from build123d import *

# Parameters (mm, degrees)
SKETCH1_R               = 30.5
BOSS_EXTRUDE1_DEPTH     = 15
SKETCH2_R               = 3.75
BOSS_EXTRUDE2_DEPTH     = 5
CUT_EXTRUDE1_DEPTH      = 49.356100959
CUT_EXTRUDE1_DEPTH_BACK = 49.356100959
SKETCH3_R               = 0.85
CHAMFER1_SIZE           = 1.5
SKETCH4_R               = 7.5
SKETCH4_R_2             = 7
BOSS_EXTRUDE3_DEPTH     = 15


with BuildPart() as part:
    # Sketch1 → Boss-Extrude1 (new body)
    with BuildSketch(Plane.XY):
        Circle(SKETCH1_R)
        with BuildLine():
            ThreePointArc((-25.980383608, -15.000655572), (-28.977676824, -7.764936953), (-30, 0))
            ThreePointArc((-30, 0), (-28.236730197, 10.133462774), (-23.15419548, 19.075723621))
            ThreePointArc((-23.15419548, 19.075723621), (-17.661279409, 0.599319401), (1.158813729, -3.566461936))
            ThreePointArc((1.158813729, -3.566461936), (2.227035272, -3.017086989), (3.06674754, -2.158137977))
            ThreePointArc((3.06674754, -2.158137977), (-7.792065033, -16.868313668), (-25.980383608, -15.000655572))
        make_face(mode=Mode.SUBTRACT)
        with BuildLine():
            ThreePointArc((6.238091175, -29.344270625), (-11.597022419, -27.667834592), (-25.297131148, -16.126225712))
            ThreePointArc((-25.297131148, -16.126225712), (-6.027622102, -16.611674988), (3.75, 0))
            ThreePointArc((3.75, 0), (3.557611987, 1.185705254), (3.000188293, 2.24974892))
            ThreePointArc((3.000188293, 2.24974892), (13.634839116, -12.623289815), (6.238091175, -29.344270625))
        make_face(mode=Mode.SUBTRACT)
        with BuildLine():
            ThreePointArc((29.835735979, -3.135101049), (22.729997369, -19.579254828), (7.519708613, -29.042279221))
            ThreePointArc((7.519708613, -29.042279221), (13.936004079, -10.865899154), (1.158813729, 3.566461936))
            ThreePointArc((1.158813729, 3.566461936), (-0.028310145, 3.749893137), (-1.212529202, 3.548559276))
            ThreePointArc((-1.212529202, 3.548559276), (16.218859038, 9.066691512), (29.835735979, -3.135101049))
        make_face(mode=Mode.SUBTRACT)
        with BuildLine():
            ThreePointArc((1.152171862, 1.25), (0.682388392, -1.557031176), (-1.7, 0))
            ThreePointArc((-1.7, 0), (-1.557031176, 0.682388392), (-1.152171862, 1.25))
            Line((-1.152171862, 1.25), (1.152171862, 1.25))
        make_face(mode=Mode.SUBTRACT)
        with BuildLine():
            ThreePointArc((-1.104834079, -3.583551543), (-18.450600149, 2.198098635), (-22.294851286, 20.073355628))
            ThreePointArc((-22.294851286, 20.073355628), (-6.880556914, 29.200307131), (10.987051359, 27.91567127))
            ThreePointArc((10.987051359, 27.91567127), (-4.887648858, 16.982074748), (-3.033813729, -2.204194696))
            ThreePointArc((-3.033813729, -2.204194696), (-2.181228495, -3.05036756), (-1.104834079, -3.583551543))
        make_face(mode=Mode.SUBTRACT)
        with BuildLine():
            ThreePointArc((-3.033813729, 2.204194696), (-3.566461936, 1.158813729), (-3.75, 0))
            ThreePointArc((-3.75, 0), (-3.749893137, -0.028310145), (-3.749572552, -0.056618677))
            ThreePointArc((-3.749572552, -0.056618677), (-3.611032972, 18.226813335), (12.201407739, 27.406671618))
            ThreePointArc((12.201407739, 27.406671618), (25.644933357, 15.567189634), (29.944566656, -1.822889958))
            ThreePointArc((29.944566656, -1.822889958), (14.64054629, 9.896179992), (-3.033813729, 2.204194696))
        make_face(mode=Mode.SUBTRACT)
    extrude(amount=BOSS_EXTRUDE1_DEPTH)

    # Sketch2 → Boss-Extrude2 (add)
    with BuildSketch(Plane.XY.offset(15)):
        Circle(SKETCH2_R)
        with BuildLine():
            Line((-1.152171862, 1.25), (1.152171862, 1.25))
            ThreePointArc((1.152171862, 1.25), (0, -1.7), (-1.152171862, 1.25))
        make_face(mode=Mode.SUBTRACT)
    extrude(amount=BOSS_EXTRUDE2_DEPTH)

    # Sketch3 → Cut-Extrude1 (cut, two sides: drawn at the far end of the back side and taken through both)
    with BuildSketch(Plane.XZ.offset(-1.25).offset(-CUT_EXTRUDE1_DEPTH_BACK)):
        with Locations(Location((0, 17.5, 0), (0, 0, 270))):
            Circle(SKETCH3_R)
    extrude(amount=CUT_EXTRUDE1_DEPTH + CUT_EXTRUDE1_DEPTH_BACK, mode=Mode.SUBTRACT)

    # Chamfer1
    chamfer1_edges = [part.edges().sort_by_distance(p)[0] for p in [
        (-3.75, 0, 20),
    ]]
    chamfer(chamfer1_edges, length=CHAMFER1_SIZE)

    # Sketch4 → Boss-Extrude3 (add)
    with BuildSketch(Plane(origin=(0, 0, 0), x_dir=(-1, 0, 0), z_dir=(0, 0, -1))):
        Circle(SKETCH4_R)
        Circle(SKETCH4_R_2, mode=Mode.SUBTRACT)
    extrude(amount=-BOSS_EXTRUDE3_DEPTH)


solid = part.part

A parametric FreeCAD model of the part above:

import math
import FreeCAD as App
import Part
import Sketcher


def edges_at(feature, points):
    """Names of the edges that pass closest to the given points."""
    edges = feature.Shape.Edges
    near = lambda p: min(range(len(edges)), key=lambda i: edges[i].distToShape(Part.Vertex(*p))[0])
    return sorted({f"Edge{near(p) + 1}" for p in points})

doc = App.newDocument("Part")
body = doc.addObject("PartDesign::Body", "Body")

sketch1 = doc.addObject("Sketcher::SketchObject", "Sketch")
body.addObject(sketch1)
sketch1.AttachmentSupport = (doc.XY_Plane, [""])
sketch1.MapMode = "FlatFace"
sketch1.addGeometry([
    Part.Circle(App.Vector(0, 0, 0), App.Vector(0, 0, 1), 30.5),
    Part.ArcOfCircle(Part.Circle(App.Vector(-4.712509, -14.503612, 0), App.Vector(0, 0, 1), 18.443449), math.radians(-53.577188), math.radians(65.280209)),
    Part.ArcOfCircle(Part.Circle(App.Vector(0, 0, 0), App.Vector(0, 0, 1), 30), math.radians(-147.483609), math.radians(-77.998554)),
    Part.ArcOfCircle(Part.Circle(App.Vector(-15.25, 0, 0), App.Vector(0, 0, 1), 19), math.radians(-121.924167), math.radians(0)),
    Part.ArcOfCircle(Part.Circle(App.Vector(0, 0, 0), App.Vector(0, 0, 1), 3.75), math.radians(0), math.radians(36.865103)),
    Part.LineSegment(App.Vector(-1.152172, 1.25, 0), App.Vector(1.152172, 1.25, 0)),
    Part.ArcOfCircle(Part.Circle(App.Vector(0, 0, 0), App.Vector(0, 0, 1), 1.7), math.radians(180), math.radians(407.332075)),
    Part.ArcOfCircle(Part.Circle(App.Vector(0, 0, 0), App.Vector(0, 0, 1), 1.7), math.radians(132.667925), math.radians(180)),
    Part.ArcOfCircle(Part.Circle(App.Vector(12.337509, -8.963725, 0), App.Vector(0, 0, 1), 18.443449), math.radians(18.422812), math.radians(137.280209)),
    Part.ArcOfCircle(Part.Circle(App.Vector(0, 0, 0), App.Vector(0, 0, 1), 30), math.radians(-75.483609), math.radians(-5.998554)),
    Part.ArcOfCircle(Part.Circle(App.Vector(-4.712509, -14.503612, 0), App.Vector(0, 0, 1), 19), math.radians(-49.924167), math.radians(72)),
    Part.ArcOfCircle(Part.Circle(App.Vector(0, 0, 0), App.Vector(0, 0, 1), 3.75), math.radians(72), math.radians(108.865103)),
    Part.ArcOfCircle(Part.Circle(App.Vector(-15.25, 0, 0), App.Vector(0, 0, 1), 18.443449), math.radians(-125.577188), math.radians(-6.719791)),
    Part.ArcOfCircle(Part.Circle(App.Vector(0, 0, 0), App.Vector(0, 0, 1), 30), math.radians(180), math.radians(210.001446)),
    Part.ArcOfCircle(Part.Circle(App.Vector(0, 0, 0), App.Vector(0, 0, 1), 30), math.radians(140.516391), math.radians(180)),
    Part.ArcOfCircle(Part.Circle(App.Vector(-4.712509, 14.503612, 0), App.Vector(0, 0, 1), 19), math.radians(166.075833), math.radians(288)),
    Part.ArcOfCircle(Part.Circle(App.Vector(0, 0, 0), App.Vector(0, 0, 1), 3.75), math.radians(-72), math.radians(-35.134897)),
    Part.ArcOfCircle(Part.Circle(App.Vector(0, 0, 0), App.Vector(0, 0, 1), 3.75), math.radians(-144), math.radians(-107.134898)),
    Part.ArcOfCircle(Part.Circle(App.Vector(-4.712509, 14.503612, 0), App.Vector(0, 0, 1), 18.443449), math.radians(162.422812), math.radians(281.280209)),
    Part.ArcOfCircle(Part.Circle(App.Vector(0, 0, 0), App.Vector(0, 0, 1), 30), math.radians(68.516391), math.radians(138.001446)),
    Part.ArcOfCircle(Part.Circle(App.Vector(12.337509, 8.963725, 0), App.Vector(0, 0, 1), 19), math.radians(94.075833), math.radians(216)),
    Part.ArcOfCircle(Part.Circle(App.Vector(12.337509, -8.963725, 0), App.Vector(0, 0, 1), 19), math.radians(22.075833), math.radians(144)),
    Part.ArcOfCircle(Part.Circle(App.Vector(0, 0, 0), App.Vector(0, 0, 1), 3.75), math.radians(144), math.radians(180)),
    Part.ArcOfCircle(Part.Circle(App.Vector(-0.000021, 0, 0), App.Vector(0, 0, 1), 3.749979), math.radians(179.999998), math.radians(180.865105)),
    Part.ArcOfCircle(Part.Circle(App.Vector(12.337509, 8.963725, 0), App.Vector(0, 0, 1), 18.443449), math.radians(90.422812), math.radians(209.280209)),
    Part.ArcOfCircle(Part.Circle(App.Vector(0, 0, 0), App.Vector(0, 0, 1), 30), math.radians(-3.483609), math.radians(66.001446)),
], False)
sketch1.addConstraint([
    Sketcher.Constraint("Coincident", 1, 1, 2, 2),
    Sketcher.Constraint("Coincident", 2, 1, 3, 1),
    Sketcher.Constraint("Tangent", 3, 2, 4, 1),
    Sketcher.Constraint("Coincident", 4, 2, 1, 2),
    Sketcher.Constraint("Coincident", 5, 2, 6, 2),
    Sketcher.Constraint("Tangent", 6, 1, 7, 2),
    Sketcher.Constraint("Coincident", 7, 1, 5, 1),
    Sketcher.Constraint("Coincident", 8, 1, 9, 2),
    Sketcher.Constraint("Coincident", 9, 1, 10, 1),
    Sketcher.Constraint("Tangent", 10, 2, 11, 1),
    Sketcher.Constraint("Coincident", 11, 2, 8, 2),
    Sketcher.Constraint("Coincident", 12, 1, 13, 2),
    Sketcher.Constraint("Tangent", 13, 1, 14, 2),
    Sketcher.Constraint("Coincident", 14, 1, 15, 1),
    Sketcher.Constraint("Tangent", 15, 2, 16, 1),
    Sketcher.Constraint("Coincident", 16, 2, 12, 2),
    Sketcher.Constraint("Coincident", 17, 2, 18, 2),
    Sketcher.Constraint("Coincident", 18, 1, 19, 2),
    Sketcher.Constraint("Coincident", 19, 1, 20, 1),
    Sketcher.Constraint("Tangent", 20, 2, 17, 1),
    Sketcher.Constraint("Tangent", 21, 2, 22, 1),
    Sketcher.Constraint("Tangent", 22, 2, 23, 1),
    Sketcher.Constraint("Coincident", 23, 2, 24, 2),
    Sketcher.Constraint("Coincident", 24, 1, 25, 2),
    Sketcher.Constraint("Coincident", 25, 1, 21, 1),
    Sketcher.Constraint("Horizontal", 5),
    Sketcher.Constraint("Coincident", 0, 3, -1, 1),
    Sketcher.Constraint("Coincident", 2, 3, -1, 1),
    Sketcher.Constraint("Coincident", 4, 3, -1, 1),
    Sketcher.Constraint("Coincident", 6, 3, -1, 1),
    Sketcher.Constraint("Coincident", 9, 3, -1, 1),
    Sketcher.Constraint("Coincident", 11, 3, -1, 1),
    Sketcher.Constraint("Coincident", 13, 3, -1, 1),
    Sketcher.Constraint("Coincident", 16, 3, -1, 1),
    Sketcher.Constraint("Coincident", 17, 3, -1, 1),
    Sketcher.Constraint("Coincident", 19, 3, -1, 1),
    Sketcher.Constraint("Coincident", 22, 3, -1, 1),
    Sketcher.Constraint("Coincident", 25, 3, -1, 1),
    Sketcher.Constraint("Coincident", 10, 3, 1, 3),
    Sketcher.Constraint("Coincident", 12, 3, 3, 3),
    Sketcher.Constraint("Coincident", 18, 3, 15, 3),
    Sketcher.Constraint("Coincident", 21, 3, 8, 3),
    Sketcher.Constraint("Coincident", 24, 3, 20, 3),
    Sketcher.Constraint("Equal", 6, 7),
    Sketcher.Constraint("Equal", 1, 8),
    Sketcher.Constraint("Equal", 2, 9),
    Sketcher.Constraint("Equal", 3, 10),
    Sketcher.Constraint("Equal", 4, 11),
    Sketcher.Constraint("Equal", 8, 12),
    Sketcher.Constraint("Equal", 9, 13),
    Sketcher.Constraint("Equal", 13, 14),
    Sketcher.Constraint("Equal", 10, 15),
    Sketcher.Constraint("Equal", 11, 16),
    Sketcher.Constraint("Equal", 16, 17),
    Sketcher.Constraint("Equal", 12, 18),
    Sketcher.Constraint("Equal", 14, 19),
    Sketcher.Constraint("Equal", 15, 20),
    Sketcher.Constraint("Equal", 20, 21),
    Sketcher.Constraint("Equal", 17, 22),
    Sketcher.Constraint("Equal", 18, 24),
    Sketcher.Constraint("Equal", 19, 25),
    Sketcher.Constraint("PointOnObject", 3, 3, -1),
    Sketcher.Constraint("PointOnObject", 6, 1, -1),
    Sketcher.Constraint("PointOnObject", 13, 1, -1),
    Sketcher.Constraint("PointOnObject", 22, 2, -1),
    Sketcher.Constraint("Vertical", 10, 3, 15, 3),
    Sketcher.Constraint("Vertical", 8, 3, 20, 3),
    Sketcher.Constraint("Diameter", 0, 61.0),
    Sketcher.Constraint("Radius", 2, 30.0),
    Sketcher.Constraint("Radius", 3, 19.0),
    Sketcher.Constraint("Radius", 6, 1.7),
    Sketcher.Constraint("Radius", 4, 3.75),
    Sketcher.Constraint("DistanceY", -1, 1, 5, 2, 1.25),
    Sketcher.Constraint("Radius", 1, 18.443449),
    Sketcher.Constraint("Radius", 23, 3.749979),
    Sketcher.Constraint("DistanceY", 24, 1, 19, 1, 0.509),
    Sketcher.Constraint("DistanceX", 1, 3, 1, 1, 10.9506),
])
pad1 = doc.addObject("PartDesign::Pad", "Pad")
body.addObject(pad1)
pad1.Profile = sketch1
pad1.Length = 15

sketch2 = doc.addObject("Sketcher::SketchObject", "Sketch001")
body.addObject(sketch2)
sketch2.AttachmentSupport = (doc.XY_Plane, [""])
sketch2.MapMode = "FlatFace"
sketch2.AttachmentOffset = App.Placement(App.Vector(0, 0, 15), App.Rotation())
sketch2.addGeometry([
    Part.Circle(App.Vector(0, 0, 0), App.Vector(0, 0, 1), 3.75),
    Part.ArcOfCircle(Part.Circle(App.Vector(0, 0, 0), App.Vector(0, 0, 1), 1.7), math.radians(132.667925), math.radians(407.332075)),
    Part.LineSegment(App.Vector(-1.152172, 1.25, 0), App.Vector(1.152172, 1.25, 0)),
], False)
sketch2.addConstraint([
    Sketcher.Constraint("Coincident", 1, 1, 2, 1),
    Sketcher.Constraint("Coincident", 2, 2, 1, 2),
    Sketcher.Constraint("Horizontal", 2),
    Sketcher.Constraint("Coincident", 0, 3, -1, 1),
    Sketcher.Constraint("Coincident", 1, 3, -1, 1),
    Sketcher.Constraint("Diameter", 0, 7.5),
    Sketcher.Constraint("Radius", 1, 1.7),
    Sketcher.Constraint("DistanceY", -1, 1, 1, 1, 1.25),
])
pad2 = doc.addObject("PartDesign::Pad", "Pad001")
body.addObject(pad2)
pad2.Profile = sketch2
pad2.Length = 5

sketch3 = doc.addObject("Sketcher::SketchObject", "Sketch002")
body.addObject(sketch3)
sketch3.AttachmentSupport = (doc.XZ_Plane, [""])
sketch3.MapMode = "FlatFace"
sketch3.AttachmentOffset = App.Placement(App.Vector(0, 0, -1.25), App.Rotation())
sketch3.addGeometry(Part.Circle(App.Vector(0, 17.5, 0), App.Vector(0, 0, 1), 0.85), False)
sketch3.addConstraint([
    Sketcher.Constraint("PointOnObject", 0, 3, -2),
    Sketcher.Constraint("Diameter", 0, 1.7),
    Sketcher.Constraint("DistanceY", -1, 1, 0, 3, 17.5),
])
pocket1 = doc.addObject("PartDesign::Pocket", "Pocket")
body.addObject(pocket1)
pocket1.Profile = sketch3
pocket1.Type = "ThroughAll"
pocket1.Midplane = True
doc.recompute()

chamfer = doc.addObject("PartDesign::Chamfer", "Chamfer")
body.addObject(chamfer)
chamfer.Base = (pocket1, edges_at(pocket1, [(-3.75, 0, 20)]))
chamfer.Size = 1.5

sketch4 = doc.addObject("Sketcher::SketchObject", "Sketch003")
body.addObject(sketch4)
sketch4.AttachmentSupport = (doc.XY_Plane, [""])
sketch4.MapMode = "FlatFace"
sketch4.addGeometry([
    Part.Circle(App.Vector(0, 0, 0), App.Vector(0, 0, 1), 7.5),
    Part.Circle(App.Vector(0, 0, 0), App.Vector(0, 0, 1), 7),
], False)
sketch4.addConstraint([
    Sketcher.Constraint("Coincident", 0, 3, -1, 1),
    Sketcher.Constraint("Coincident", 1, 3, -1, 1),
    Sketcher.Constraint("Diameter", 0, 15.0),
    Sketcher.Constraint("Diameter", 1, 14.0),
])
pad3 = doc.addObject("PartDesign::Pad", "Pad002")
body.addObject(pad3)
pad3.Profile = sketch4
pad3.Length = 15

doc.recompute()
